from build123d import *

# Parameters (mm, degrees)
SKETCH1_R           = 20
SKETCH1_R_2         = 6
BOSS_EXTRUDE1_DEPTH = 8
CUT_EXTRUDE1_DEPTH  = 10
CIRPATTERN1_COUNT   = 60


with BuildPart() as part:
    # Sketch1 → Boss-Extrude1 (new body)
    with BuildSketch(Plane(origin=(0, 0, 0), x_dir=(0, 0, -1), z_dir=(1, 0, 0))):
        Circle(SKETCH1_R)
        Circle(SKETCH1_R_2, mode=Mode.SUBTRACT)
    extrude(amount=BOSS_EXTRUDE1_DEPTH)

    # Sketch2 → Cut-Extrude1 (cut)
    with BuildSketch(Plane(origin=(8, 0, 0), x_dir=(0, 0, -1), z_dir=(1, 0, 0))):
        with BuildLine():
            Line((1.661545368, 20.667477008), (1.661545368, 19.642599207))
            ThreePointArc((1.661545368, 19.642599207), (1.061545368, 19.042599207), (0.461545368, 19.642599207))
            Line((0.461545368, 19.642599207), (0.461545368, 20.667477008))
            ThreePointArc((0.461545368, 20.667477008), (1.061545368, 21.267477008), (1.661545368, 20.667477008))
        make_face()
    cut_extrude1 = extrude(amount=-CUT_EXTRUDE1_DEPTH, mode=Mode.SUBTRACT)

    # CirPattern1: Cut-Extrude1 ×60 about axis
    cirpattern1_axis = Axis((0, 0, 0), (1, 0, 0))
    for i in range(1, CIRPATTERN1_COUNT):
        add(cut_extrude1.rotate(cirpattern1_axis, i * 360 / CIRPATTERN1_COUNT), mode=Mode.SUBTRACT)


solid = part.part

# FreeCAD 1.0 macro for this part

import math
import FreeCAD as App
import Part
import Sketcher

V = App.Vector
Q = App.Units.Quantity

doc = App.newDocument("Part")
body = doc.addObject("PartDesign::Body", "Body")

sketch1 = doc.addObject("Sketcher::SketchObject", "Sketch")
body.addObject(sketch1)
sketch1.AttachmentSupport = (doc.YZ_Plane, [""])
sketch1.MapMode = "FlatFace"
sketch1.addGeometry([
    Part.Circle(V(0, 0, 0), V(0, 0, 1), 20),
    Part.Circle(V(0, 0, 0), V(0, 0, 1), 6),
], False)
sketch1.addConstraint([
    Sketcher.Constraint("Coincident", 0, 3, -1, 1),
    Sketcher.Constraint("Coincident", 1, 3, -1, 1),
    Sketcher.Constraint("Diameter", 0, Q("40 mm")),
    Sketcher.Constraint("Diameter", 1, Q("12 mm")),
])
pad1 = doc.addObject("PartDesign::Pad", "Pad")
body.addObject(pad1)
pad1.Profile = sketch1
pad1.Length = 8

sketch2 = doc.addObject("Sketcher::SketchObject", "Sketch001")
body.addObject(sketch2)
sketch2.AttachmentSupport = (doc.YZ_Plane, [""])
sketch2.MapMode = "FlatFace"
sketch2.AttachmentOffset = App.Placement(V(0, 0, 8), App.Rotation())
sketch2.addGeometry([
    Part.LineSegment(V(19.6, -1.7, 0), V(20.7, -1.7, 0)),
    Part.ArcOfCircle(Part.Circle(V(20.7, -1.1, 0), V(0, 0, 1), 0.6), math.radians(-90), math.radians(90)),
    Part.LineSegment(V(20.7, -0.5, 0), V(19.6, -0.5, 0)),
    Part.ArcOfCircle(Part.Circle(V(19.6, -1.1, 0), V(0, 0, 1), 0.6), math.radians(90), math.radians(270)),
], False)
sketch2.addConstraint([
    Sketcher.Constraint("Tangent", 0, 2, 1, 1),
    Sketcher.Constraint("Tangent", 1, 2, 2, 1),
    Sketcher.Constraint("Tangent", 2, 2, 3, 1),
    Sketcher.Constraint("Tangent", 3, 2, 0, 1),
    Sketcher.Constraint("Horizontal", 0),
    Sketcher.Constraint("Horizontal", 2),
    Sketcher.Constraint("Radius", 1, Q("0.6 mm")),
    Sketcher.Constraint("DistanceX", -1, 1, 3, 3, Q("19.642599 mm")),
    Sketcher.Constraint("DistanceX", 0, 1, 0, 2, Q("1.024878 mm")),
    Sketcher.Constraint("DistanceY", 1, 3, -1, 1, Q("1.061545 mm")),
])
pocket1 = doc.addObject("PartDesign::Pocket", "Pocket")
body.addObject(pocket1)
pocket1.Profile = sketch2
pocket1.Length = 10
doc.recompute()

polarpattern = doc.addObject("PartDesign::PolarPattern", "PolarPattern")
body.addObject(polarpattern)
polarpattern.Originals = [pocket1]
polarpattern.Axis = (doc.X_Axis, [""])
polarpattern.Angle = 360
polarpattern.Occurrences = 60
body.Tip = polarpattern

doc.recompute()
